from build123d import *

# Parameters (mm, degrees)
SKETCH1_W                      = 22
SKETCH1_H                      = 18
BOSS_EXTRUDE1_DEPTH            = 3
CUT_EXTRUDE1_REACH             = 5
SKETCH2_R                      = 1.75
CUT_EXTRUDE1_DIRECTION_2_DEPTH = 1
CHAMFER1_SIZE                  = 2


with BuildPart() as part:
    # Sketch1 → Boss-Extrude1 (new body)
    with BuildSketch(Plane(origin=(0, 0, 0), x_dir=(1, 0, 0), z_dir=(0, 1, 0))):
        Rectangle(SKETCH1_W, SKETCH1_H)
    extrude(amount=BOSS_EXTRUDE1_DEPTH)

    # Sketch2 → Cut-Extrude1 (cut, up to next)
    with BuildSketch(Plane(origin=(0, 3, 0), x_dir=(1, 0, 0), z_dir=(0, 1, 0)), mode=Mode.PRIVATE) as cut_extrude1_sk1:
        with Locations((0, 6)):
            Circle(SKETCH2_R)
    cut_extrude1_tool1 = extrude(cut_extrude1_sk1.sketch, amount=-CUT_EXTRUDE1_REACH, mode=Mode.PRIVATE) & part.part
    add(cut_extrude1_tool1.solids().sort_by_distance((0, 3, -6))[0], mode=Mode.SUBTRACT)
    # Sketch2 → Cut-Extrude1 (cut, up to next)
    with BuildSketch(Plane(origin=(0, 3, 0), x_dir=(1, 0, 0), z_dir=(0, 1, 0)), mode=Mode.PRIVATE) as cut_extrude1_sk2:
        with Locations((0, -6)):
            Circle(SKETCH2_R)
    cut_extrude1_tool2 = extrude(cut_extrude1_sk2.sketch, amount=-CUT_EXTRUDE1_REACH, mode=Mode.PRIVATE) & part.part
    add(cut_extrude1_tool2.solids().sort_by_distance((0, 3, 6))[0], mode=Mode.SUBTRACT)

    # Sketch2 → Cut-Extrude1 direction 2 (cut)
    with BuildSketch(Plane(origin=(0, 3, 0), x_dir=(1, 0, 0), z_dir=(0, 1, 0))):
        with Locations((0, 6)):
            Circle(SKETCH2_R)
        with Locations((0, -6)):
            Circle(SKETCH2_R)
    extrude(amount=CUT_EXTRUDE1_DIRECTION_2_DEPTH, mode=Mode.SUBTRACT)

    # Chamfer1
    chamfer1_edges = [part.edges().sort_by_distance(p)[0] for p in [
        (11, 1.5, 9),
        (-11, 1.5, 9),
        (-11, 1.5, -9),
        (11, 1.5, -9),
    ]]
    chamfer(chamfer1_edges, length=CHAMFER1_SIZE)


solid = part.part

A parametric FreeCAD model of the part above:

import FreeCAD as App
import Part
import Sketcher

V = App.Vector
Q = App.Units.Quantity


def edges_at(feature, points):
    """Names of the edges that pass closest to the given points."""
    edges = feature.Shape.Edges
    near = lambda p: min(range(len(edges)), key=lambda i: edges[i].distToShape(Part.Vertex(*p))[0])
    return sorted({f"Edge{near(p) + 1}" for p in points})

doc = App.newDocument("Part")
body = doc.addObject("PartDesign::Body", "Body")

# Sketch on XZ plane
sketch1 = doc.addObject("Sketcher::SketchObject", "Sketch")
body.addObject(sketch1)
sketch1.AttachmentSupport = (doc.XZ_Plane, [""])
sketch1.MapMode = "FlatFace"
sketch1.addGeometry(Part.LineSegment(V(-11, -9, 0), V(-11, 9, 0)), False)
sketch1.addGeometry(Part.LineSegment(V(-11, 9, 0), V(11, 9, 0)), False)
sketch1.addGeometry(Part.LineSegment(V(11, 9, 0), V(11, -9, 0)), False)
sketch1.addGeometry(Part.LineSegment(V(11, -9, 0), V(-11, -9, 0)), False)
sketch1.addConstraint(Sketcher.Constraint("Coincident", 0, 2, 1, 1))
sketch1.addConstraint(Sketcher.Constraint("Coincident", 1, 2, 2, 1))
sketch1.addConstraint(Sketcher.Constraint("Coincident", 2, 2, 3, 1))
sketch1.addConstraint(Sketcher.Constraint("Coincident", 3, 2, 0, 1))
sketch1.addConstraint(Sketcher.Constraint("Vertical", 0))
sketch1.addConstraint(Sketcher.Constraint("Horizontal", 1))
sketch1.addConstraint(Sketcher.Constraint("Vertical", 2))
sketch1.addConstraint(Sketcher.Constraint("Horizontal", 3))
sketch1.addConstraint(Sketcher.Constraint("Symmetric", 0, 2, 2, 2, -1, 1))
sketch1.addConstraint(Sketcher.Constraint("DistanceX", 1, 1, 1, 2, Q("22 mm")))
sketch1.addConstraint(Sketcher.Constraint("DistanceY", 0, 1, 0, 2, Q("18 mm")))
pad1 = doc.addObject("PartDesign::Pad", "Pad")
body.addObject(pad1)
pad1.Profile = sketch1
pad1.Length = 3
pad1.Reversed = True

# Sketch on XZ plane
sketch2 = doc.addObject("Sketcher::SketchObject", "Sketch001")
body.addObject(sketch2)
sketch2.AttachmentSupport = (doc.XZ_Plane, [""])
sketch2.MapMode = "FlatFace"
sketch2.AttachmentOffset = App.Placement(V(0, 0, -3), App.Rotation())
sketch2.addGeometry(Part.Circle(V(0, -6, 0), V(0, 0, 1), 1.8), False)
sketch2.addConstraint(Sketcher.Constraint("PointOnObject", 0, 3, -2))
sketch2.addConstraint(Sketcher.Constraint("Diameter", 0, Q("3.5 mm")))
sketch2.addConstraint(Sketcher.Constraint("DistanceY", 0, 3, -1, 1, Q("6 mm")))
pocket1 = doc.addObject("PartDesign::Pocket", "Pocket")
body.addObject(pocket1)
pocket1.Profile = sketch2
pocket1.Type = "UpToFirst"
pocket1.Reversed = True

# Sketch on XZ plane
sketch3 = doc.addObject("Sketcher::SketchObject", "Sketch002")
body.addObject(sketch3)
sketch3.AttachmentSupport = (doc.XZ_Plane, [""])
sketch3.MapMode = "FlatFace"
sketch3.AttachmentOffset = App.Placement(V(0, 0, -3), App.Rotation())
sketch3.addGeometry(Part.Circle(V(0, 6, 0), V(0, 0, 1), 1.8), False)
sketch3.addConstraint(Sketcher.Constraint("PointOnObject", 0, 3, -2))
sketch3.addConstraint(Sketcher.Constraint("Diameter", 0, Q("3.5 mm")))
sketch3.addConstraint(Sketcher.Constraint("DistanceY", -1, 1, 0, 3, Q("6 mm")))
pocket2 = doc.addObject("PartDesign::Pocket", "Pocket001")
body.addObject(pocket2)
pocket2.Profile = sketch3
pocket2.Type = "UpToFirst"
pocket2.Reversed = True

# Sketch on XZ plane
sketch4 = doc.addObject("Sketcher::SketchObject", "Sketch003")
body.addObject(sketch4)
sketch4.AttachmentSupport = (doc.XZ_Plane, [""])
sketch4.MapMode = "FlatFace"
sketch4.AttachmentOffset = App.Placement(V(0, 0, -3), App.Rotation())
sketch4.addGeometry(Part.Circle(V(0, -6, 0), V(0, 0, 1), 1.8), False)
sketch4.addGeometry(Part.Circle(V(0, 6, 0), V(0, 0, 1), 1.8), False)
sketch4.addConstraint(Sketcher.Constraint("Equal", 0, 1))
sketch4.addConstraint(Sketcher.Constraint("Symmetric", 0, 3, 1, 3, -1, 1))
sketch4.addConstraint(Sketcher.Constraint("PointOnObject", 0, 3, -2))
sketch4.addConstraint(Sketcher.Constraint("Diameter", 0, Q("3.5 mm")))
sketch4.addConstraint(Sketcher.Constraint("DistanceY", 0, 3, -1, 1, Q("6 mm")))
pocket3 = doc.addObject("PartDesign::Pocket", "Pocket002")
body.addObject(pocket3)
pocket3.Profile = sketch4
pocket3.Length = 1
doc.recompute()

chamfer = doc.addObject("PartDesign::Chamfer", "Chamfer")
body.addObject(chamfer)
chamfer.Base = (pocket3, edges_at(pocket3, [
    (11, 1.5, 9),
    (-11, 1.5, 9),
    (-11, 1.5, -9),
    (11, 1.5, -9),
]))
chamfer.Size = 2

doc.recompute()
